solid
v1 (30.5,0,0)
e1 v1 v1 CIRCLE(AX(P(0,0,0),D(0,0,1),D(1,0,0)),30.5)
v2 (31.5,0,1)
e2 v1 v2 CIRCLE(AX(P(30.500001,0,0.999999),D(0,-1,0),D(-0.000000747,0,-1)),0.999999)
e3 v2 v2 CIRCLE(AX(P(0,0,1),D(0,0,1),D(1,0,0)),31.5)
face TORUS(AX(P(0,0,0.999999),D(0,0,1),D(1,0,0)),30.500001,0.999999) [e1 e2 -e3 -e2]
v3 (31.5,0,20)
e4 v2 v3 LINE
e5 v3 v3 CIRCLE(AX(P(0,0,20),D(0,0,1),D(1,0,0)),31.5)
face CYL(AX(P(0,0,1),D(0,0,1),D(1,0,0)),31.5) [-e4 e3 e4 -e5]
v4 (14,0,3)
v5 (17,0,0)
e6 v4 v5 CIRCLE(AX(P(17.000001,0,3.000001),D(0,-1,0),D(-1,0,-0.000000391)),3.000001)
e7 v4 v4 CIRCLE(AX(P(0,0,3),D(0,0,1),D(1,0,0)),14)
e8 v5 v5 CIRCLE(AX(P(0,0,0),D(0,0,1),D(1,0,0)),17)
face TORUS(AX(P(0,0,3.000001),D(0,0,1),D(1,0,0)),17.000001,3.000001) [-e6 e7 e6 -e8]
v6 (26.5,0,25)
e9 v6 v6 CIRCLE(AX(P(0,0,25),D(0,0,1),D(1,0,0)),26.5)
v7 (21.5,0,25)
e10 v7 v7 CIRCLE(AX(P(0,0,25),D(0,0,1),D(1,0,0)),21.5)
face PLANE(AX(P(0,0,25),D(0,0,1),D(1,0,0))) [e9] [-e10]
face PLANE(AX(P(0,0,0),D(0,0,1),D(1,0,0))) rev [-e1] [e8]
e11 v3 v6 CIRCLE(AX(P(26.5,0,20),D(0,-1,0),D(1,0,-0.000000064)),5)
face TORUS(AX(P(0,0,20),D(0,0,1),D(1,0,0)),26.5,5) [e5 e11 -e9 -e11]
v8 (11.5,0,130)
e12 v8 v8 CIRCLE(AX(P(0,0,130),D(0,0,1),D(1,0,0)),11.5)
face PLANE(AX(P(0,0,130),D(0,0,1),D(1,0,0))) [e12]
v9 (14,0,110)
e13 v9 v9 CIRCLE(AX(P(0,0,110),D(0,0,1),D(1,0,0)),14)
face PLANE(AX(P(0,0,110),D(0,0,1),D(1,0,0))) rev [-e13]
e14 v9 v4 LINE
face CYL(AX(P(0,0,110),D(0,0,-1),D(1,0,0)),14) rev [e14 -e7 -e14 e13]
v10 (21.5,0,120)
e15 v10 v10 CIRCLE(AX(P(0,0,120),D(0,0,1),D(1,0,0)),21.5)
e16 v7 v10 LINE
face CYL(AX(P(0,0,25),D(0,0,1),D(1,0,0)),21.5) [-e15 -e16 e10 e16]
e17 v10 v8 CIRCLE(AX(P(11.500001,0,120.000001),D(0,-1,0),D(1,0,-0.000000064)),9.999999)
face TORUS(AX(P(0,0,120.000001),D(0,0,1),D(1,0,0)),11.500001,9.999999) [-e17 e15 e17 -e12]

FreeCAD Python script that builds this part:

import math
import FreeCAD as App
import Part
import Sketcher
from FreeCAD import Vector

doc = App.newDocument("Part")
body = doc.addObject("PartDesign::Body", "Body")

sketch1 = body.newObject("Sketcher::SketchObject", "Sketch")
sketch1.AttachmentSupport = (doc.getObject("XZ_Plane"), [""])
sketch1.MapMode = "FlatFace"
sketch1.addGeometry(Part.LineSegment(Vector(14, 110, 0), Vector(14, 3, 0)), False)
sketch1.addGeometry(Part.ArcOfCircle(Part.Circle(Vector(17.000001, 3.000001, 0), Vector(0, 0, 1), 3.000001), math.radians(-179.999978), math.radians(-90.000022)), False)
sketch1.addGeometry(Part.LineSegment(Vector(17, 0, 0), Vector(30.5, 0, 0)), False)
sketch1.addGeometry(Part.ArcOfCircle(Part.Circle(Vector(30.500001, 0.999999, 0), Vector(0, 0, 1), 0.999999), math.radians(-90.000043), math.radians(0.000043)), False)
sketch1.addGeometry(Part.LineSegment(Vector(31.5, 1, 0), Vector(31.5, 20, 0)), False)
sketch1.addGeometry(Part.ArcOfCircle(Part.Circle(Vector(26.5, 20, 0), Vector(0, 0, 1), 5), math.radians(-0.000004), math.radians(90.000004)), False)
sketch1.addGeometry(Part.LineSegment(Vector(26.5, 25, 0), Vector(21.5, 25, 0)), False)
sketch1.addGeometry(Part.LineSegment(Vector(21.5, 25, 0), Vector(21.5, 120, 0)), False)
sketch1.addGeometry(Part.ArcOfCircle(Part.Circle(Vector(11.500001, 120.000001, 0), Vector(0, 0, 1), 9.999999), math.radians(-0.000004), math.radians(90.000004)), False)
sketch1.addGeometry(Part.LineSegment(Vector(11.5, 130, 0), Vector(0, 130, 0)), False)
sketch1.addGeometry(Part.LineSegment(Vector(0, 130, 0), Vector(0, 110, 0)), False)
sketch1.addGeometry(Part.LineSegment(Vector(0, 110, 0), Vector(14, 110, 0)), False)
sketch1.addConstraint(Sketcher.Constraint("Tangent", 0, 2, 1, 1))
sketch1.addConstraint(Sketcher.Constraint("Tangent", 1, 2, 2, 1))
sketch1.addConstraint(Sketcher.Constraint("Tangent", 2, 2, 3, 1))
sketch1.addConstraint(Sketcher.Constraint("Tangent", 3, 2, 4, 1))
sketch1.addConstraint(Sketcher.Constraint("Tangent", 4, 2, 5, 1))
sketch1.addConstraint(Sketcher.Constraint("Tangent", 5, 2, 6, 1))
sketch1.addConstraint(Sketcher.Constraint("Coincident", 6, 2, 7, 1))
sketch1.addConstraint(Sketcher.Constraint("Tangent", 7, 2, 8, 1))
sketch1.addConstraint(Sketcher.Constraint("Tangent", 8, 2, 9, 1))
sketch1.addConstraint(Sketcher.Constraint("Coincident", 9, 2, 10, 1))
sketch1.addConstraint(Sketcher.Constraint("Coincident", 10, 2, 11, 1))
sketch1.addConstraint(Sketcher.Constraint("Coincident", 11, 2, 0, 1))
sketch1.addConstraint(Sketcher.Constraint("Vertical", 0))
sketch1.addConstraint(Sketcher.Constraint("Horizontal", 2))
sketch1.addConstraint(Sketcher.Constraint("Vertical", 4))
sketch1.addConstraint(Sketcher.Constraint("Horizontal", 6))
sketch1.addConstraint(Sketcher.Constraint("Vertical", 7))
sketch1.addConstraint(Sketcher.Constraint("Horizontal", 9))
sketch1.addConstraint(Sketcher.Constraint("Vertical", 10))
sketch1.addConstraint(Sketcher.Constraint("Horizontal", 11))
sketch1.addConstraint(Sketcher.Constraint("PointOnObject", 1, 2, -1))
sketch1.addConstraint(Sketcher.Constraint("PointOnObject", 9, 2, -2))
sketch1.addConstraint(Sketcher.Constraint("Radius", 1, 3.000001))
sketch1.addConstraint(Sketcher.Constraint("Radius", 3, 0.999999))
sketch1.addConstraint(Sketcher.Constraint("Radius", 5, 5.0))
sketch1.addConstraint(Sketcher.Constraint("Radius", 8, 9.999999))
sketch1.addConstraint(Sketcher.Constraint("DistanceX", 6, 2, 6, 1, 5.0))
sketch1.addConstraint(Sketcher.Constraint("DistanceX", 11, 1, 11, 2, 14.0))
sketch1.addConstraint(Sketcher.Constraint("DistanceY", 0, 2, 0, 1, 107.0))
sketch1.addConstraint(Sketcher.Constraint("DistanceY", 4, 1, 4, 2, 19.0))
sketch1.addConstraint(Sketcher.Constraint("DistanceY", 7, 1, 7, 2, 95.0))
sketch1.addConstraint(Sketcher.Constraint("DistanceX", 2, 1, 2, 2, 13.5))
revolution = body.newObject("PartDesign::Revolution", "Revolution")
revolution.Profile = sketch1
revolution.ReferenceAxis = (sketch1, ["V_Axis"])
revolution.Angle = 360

doc.recompute()
